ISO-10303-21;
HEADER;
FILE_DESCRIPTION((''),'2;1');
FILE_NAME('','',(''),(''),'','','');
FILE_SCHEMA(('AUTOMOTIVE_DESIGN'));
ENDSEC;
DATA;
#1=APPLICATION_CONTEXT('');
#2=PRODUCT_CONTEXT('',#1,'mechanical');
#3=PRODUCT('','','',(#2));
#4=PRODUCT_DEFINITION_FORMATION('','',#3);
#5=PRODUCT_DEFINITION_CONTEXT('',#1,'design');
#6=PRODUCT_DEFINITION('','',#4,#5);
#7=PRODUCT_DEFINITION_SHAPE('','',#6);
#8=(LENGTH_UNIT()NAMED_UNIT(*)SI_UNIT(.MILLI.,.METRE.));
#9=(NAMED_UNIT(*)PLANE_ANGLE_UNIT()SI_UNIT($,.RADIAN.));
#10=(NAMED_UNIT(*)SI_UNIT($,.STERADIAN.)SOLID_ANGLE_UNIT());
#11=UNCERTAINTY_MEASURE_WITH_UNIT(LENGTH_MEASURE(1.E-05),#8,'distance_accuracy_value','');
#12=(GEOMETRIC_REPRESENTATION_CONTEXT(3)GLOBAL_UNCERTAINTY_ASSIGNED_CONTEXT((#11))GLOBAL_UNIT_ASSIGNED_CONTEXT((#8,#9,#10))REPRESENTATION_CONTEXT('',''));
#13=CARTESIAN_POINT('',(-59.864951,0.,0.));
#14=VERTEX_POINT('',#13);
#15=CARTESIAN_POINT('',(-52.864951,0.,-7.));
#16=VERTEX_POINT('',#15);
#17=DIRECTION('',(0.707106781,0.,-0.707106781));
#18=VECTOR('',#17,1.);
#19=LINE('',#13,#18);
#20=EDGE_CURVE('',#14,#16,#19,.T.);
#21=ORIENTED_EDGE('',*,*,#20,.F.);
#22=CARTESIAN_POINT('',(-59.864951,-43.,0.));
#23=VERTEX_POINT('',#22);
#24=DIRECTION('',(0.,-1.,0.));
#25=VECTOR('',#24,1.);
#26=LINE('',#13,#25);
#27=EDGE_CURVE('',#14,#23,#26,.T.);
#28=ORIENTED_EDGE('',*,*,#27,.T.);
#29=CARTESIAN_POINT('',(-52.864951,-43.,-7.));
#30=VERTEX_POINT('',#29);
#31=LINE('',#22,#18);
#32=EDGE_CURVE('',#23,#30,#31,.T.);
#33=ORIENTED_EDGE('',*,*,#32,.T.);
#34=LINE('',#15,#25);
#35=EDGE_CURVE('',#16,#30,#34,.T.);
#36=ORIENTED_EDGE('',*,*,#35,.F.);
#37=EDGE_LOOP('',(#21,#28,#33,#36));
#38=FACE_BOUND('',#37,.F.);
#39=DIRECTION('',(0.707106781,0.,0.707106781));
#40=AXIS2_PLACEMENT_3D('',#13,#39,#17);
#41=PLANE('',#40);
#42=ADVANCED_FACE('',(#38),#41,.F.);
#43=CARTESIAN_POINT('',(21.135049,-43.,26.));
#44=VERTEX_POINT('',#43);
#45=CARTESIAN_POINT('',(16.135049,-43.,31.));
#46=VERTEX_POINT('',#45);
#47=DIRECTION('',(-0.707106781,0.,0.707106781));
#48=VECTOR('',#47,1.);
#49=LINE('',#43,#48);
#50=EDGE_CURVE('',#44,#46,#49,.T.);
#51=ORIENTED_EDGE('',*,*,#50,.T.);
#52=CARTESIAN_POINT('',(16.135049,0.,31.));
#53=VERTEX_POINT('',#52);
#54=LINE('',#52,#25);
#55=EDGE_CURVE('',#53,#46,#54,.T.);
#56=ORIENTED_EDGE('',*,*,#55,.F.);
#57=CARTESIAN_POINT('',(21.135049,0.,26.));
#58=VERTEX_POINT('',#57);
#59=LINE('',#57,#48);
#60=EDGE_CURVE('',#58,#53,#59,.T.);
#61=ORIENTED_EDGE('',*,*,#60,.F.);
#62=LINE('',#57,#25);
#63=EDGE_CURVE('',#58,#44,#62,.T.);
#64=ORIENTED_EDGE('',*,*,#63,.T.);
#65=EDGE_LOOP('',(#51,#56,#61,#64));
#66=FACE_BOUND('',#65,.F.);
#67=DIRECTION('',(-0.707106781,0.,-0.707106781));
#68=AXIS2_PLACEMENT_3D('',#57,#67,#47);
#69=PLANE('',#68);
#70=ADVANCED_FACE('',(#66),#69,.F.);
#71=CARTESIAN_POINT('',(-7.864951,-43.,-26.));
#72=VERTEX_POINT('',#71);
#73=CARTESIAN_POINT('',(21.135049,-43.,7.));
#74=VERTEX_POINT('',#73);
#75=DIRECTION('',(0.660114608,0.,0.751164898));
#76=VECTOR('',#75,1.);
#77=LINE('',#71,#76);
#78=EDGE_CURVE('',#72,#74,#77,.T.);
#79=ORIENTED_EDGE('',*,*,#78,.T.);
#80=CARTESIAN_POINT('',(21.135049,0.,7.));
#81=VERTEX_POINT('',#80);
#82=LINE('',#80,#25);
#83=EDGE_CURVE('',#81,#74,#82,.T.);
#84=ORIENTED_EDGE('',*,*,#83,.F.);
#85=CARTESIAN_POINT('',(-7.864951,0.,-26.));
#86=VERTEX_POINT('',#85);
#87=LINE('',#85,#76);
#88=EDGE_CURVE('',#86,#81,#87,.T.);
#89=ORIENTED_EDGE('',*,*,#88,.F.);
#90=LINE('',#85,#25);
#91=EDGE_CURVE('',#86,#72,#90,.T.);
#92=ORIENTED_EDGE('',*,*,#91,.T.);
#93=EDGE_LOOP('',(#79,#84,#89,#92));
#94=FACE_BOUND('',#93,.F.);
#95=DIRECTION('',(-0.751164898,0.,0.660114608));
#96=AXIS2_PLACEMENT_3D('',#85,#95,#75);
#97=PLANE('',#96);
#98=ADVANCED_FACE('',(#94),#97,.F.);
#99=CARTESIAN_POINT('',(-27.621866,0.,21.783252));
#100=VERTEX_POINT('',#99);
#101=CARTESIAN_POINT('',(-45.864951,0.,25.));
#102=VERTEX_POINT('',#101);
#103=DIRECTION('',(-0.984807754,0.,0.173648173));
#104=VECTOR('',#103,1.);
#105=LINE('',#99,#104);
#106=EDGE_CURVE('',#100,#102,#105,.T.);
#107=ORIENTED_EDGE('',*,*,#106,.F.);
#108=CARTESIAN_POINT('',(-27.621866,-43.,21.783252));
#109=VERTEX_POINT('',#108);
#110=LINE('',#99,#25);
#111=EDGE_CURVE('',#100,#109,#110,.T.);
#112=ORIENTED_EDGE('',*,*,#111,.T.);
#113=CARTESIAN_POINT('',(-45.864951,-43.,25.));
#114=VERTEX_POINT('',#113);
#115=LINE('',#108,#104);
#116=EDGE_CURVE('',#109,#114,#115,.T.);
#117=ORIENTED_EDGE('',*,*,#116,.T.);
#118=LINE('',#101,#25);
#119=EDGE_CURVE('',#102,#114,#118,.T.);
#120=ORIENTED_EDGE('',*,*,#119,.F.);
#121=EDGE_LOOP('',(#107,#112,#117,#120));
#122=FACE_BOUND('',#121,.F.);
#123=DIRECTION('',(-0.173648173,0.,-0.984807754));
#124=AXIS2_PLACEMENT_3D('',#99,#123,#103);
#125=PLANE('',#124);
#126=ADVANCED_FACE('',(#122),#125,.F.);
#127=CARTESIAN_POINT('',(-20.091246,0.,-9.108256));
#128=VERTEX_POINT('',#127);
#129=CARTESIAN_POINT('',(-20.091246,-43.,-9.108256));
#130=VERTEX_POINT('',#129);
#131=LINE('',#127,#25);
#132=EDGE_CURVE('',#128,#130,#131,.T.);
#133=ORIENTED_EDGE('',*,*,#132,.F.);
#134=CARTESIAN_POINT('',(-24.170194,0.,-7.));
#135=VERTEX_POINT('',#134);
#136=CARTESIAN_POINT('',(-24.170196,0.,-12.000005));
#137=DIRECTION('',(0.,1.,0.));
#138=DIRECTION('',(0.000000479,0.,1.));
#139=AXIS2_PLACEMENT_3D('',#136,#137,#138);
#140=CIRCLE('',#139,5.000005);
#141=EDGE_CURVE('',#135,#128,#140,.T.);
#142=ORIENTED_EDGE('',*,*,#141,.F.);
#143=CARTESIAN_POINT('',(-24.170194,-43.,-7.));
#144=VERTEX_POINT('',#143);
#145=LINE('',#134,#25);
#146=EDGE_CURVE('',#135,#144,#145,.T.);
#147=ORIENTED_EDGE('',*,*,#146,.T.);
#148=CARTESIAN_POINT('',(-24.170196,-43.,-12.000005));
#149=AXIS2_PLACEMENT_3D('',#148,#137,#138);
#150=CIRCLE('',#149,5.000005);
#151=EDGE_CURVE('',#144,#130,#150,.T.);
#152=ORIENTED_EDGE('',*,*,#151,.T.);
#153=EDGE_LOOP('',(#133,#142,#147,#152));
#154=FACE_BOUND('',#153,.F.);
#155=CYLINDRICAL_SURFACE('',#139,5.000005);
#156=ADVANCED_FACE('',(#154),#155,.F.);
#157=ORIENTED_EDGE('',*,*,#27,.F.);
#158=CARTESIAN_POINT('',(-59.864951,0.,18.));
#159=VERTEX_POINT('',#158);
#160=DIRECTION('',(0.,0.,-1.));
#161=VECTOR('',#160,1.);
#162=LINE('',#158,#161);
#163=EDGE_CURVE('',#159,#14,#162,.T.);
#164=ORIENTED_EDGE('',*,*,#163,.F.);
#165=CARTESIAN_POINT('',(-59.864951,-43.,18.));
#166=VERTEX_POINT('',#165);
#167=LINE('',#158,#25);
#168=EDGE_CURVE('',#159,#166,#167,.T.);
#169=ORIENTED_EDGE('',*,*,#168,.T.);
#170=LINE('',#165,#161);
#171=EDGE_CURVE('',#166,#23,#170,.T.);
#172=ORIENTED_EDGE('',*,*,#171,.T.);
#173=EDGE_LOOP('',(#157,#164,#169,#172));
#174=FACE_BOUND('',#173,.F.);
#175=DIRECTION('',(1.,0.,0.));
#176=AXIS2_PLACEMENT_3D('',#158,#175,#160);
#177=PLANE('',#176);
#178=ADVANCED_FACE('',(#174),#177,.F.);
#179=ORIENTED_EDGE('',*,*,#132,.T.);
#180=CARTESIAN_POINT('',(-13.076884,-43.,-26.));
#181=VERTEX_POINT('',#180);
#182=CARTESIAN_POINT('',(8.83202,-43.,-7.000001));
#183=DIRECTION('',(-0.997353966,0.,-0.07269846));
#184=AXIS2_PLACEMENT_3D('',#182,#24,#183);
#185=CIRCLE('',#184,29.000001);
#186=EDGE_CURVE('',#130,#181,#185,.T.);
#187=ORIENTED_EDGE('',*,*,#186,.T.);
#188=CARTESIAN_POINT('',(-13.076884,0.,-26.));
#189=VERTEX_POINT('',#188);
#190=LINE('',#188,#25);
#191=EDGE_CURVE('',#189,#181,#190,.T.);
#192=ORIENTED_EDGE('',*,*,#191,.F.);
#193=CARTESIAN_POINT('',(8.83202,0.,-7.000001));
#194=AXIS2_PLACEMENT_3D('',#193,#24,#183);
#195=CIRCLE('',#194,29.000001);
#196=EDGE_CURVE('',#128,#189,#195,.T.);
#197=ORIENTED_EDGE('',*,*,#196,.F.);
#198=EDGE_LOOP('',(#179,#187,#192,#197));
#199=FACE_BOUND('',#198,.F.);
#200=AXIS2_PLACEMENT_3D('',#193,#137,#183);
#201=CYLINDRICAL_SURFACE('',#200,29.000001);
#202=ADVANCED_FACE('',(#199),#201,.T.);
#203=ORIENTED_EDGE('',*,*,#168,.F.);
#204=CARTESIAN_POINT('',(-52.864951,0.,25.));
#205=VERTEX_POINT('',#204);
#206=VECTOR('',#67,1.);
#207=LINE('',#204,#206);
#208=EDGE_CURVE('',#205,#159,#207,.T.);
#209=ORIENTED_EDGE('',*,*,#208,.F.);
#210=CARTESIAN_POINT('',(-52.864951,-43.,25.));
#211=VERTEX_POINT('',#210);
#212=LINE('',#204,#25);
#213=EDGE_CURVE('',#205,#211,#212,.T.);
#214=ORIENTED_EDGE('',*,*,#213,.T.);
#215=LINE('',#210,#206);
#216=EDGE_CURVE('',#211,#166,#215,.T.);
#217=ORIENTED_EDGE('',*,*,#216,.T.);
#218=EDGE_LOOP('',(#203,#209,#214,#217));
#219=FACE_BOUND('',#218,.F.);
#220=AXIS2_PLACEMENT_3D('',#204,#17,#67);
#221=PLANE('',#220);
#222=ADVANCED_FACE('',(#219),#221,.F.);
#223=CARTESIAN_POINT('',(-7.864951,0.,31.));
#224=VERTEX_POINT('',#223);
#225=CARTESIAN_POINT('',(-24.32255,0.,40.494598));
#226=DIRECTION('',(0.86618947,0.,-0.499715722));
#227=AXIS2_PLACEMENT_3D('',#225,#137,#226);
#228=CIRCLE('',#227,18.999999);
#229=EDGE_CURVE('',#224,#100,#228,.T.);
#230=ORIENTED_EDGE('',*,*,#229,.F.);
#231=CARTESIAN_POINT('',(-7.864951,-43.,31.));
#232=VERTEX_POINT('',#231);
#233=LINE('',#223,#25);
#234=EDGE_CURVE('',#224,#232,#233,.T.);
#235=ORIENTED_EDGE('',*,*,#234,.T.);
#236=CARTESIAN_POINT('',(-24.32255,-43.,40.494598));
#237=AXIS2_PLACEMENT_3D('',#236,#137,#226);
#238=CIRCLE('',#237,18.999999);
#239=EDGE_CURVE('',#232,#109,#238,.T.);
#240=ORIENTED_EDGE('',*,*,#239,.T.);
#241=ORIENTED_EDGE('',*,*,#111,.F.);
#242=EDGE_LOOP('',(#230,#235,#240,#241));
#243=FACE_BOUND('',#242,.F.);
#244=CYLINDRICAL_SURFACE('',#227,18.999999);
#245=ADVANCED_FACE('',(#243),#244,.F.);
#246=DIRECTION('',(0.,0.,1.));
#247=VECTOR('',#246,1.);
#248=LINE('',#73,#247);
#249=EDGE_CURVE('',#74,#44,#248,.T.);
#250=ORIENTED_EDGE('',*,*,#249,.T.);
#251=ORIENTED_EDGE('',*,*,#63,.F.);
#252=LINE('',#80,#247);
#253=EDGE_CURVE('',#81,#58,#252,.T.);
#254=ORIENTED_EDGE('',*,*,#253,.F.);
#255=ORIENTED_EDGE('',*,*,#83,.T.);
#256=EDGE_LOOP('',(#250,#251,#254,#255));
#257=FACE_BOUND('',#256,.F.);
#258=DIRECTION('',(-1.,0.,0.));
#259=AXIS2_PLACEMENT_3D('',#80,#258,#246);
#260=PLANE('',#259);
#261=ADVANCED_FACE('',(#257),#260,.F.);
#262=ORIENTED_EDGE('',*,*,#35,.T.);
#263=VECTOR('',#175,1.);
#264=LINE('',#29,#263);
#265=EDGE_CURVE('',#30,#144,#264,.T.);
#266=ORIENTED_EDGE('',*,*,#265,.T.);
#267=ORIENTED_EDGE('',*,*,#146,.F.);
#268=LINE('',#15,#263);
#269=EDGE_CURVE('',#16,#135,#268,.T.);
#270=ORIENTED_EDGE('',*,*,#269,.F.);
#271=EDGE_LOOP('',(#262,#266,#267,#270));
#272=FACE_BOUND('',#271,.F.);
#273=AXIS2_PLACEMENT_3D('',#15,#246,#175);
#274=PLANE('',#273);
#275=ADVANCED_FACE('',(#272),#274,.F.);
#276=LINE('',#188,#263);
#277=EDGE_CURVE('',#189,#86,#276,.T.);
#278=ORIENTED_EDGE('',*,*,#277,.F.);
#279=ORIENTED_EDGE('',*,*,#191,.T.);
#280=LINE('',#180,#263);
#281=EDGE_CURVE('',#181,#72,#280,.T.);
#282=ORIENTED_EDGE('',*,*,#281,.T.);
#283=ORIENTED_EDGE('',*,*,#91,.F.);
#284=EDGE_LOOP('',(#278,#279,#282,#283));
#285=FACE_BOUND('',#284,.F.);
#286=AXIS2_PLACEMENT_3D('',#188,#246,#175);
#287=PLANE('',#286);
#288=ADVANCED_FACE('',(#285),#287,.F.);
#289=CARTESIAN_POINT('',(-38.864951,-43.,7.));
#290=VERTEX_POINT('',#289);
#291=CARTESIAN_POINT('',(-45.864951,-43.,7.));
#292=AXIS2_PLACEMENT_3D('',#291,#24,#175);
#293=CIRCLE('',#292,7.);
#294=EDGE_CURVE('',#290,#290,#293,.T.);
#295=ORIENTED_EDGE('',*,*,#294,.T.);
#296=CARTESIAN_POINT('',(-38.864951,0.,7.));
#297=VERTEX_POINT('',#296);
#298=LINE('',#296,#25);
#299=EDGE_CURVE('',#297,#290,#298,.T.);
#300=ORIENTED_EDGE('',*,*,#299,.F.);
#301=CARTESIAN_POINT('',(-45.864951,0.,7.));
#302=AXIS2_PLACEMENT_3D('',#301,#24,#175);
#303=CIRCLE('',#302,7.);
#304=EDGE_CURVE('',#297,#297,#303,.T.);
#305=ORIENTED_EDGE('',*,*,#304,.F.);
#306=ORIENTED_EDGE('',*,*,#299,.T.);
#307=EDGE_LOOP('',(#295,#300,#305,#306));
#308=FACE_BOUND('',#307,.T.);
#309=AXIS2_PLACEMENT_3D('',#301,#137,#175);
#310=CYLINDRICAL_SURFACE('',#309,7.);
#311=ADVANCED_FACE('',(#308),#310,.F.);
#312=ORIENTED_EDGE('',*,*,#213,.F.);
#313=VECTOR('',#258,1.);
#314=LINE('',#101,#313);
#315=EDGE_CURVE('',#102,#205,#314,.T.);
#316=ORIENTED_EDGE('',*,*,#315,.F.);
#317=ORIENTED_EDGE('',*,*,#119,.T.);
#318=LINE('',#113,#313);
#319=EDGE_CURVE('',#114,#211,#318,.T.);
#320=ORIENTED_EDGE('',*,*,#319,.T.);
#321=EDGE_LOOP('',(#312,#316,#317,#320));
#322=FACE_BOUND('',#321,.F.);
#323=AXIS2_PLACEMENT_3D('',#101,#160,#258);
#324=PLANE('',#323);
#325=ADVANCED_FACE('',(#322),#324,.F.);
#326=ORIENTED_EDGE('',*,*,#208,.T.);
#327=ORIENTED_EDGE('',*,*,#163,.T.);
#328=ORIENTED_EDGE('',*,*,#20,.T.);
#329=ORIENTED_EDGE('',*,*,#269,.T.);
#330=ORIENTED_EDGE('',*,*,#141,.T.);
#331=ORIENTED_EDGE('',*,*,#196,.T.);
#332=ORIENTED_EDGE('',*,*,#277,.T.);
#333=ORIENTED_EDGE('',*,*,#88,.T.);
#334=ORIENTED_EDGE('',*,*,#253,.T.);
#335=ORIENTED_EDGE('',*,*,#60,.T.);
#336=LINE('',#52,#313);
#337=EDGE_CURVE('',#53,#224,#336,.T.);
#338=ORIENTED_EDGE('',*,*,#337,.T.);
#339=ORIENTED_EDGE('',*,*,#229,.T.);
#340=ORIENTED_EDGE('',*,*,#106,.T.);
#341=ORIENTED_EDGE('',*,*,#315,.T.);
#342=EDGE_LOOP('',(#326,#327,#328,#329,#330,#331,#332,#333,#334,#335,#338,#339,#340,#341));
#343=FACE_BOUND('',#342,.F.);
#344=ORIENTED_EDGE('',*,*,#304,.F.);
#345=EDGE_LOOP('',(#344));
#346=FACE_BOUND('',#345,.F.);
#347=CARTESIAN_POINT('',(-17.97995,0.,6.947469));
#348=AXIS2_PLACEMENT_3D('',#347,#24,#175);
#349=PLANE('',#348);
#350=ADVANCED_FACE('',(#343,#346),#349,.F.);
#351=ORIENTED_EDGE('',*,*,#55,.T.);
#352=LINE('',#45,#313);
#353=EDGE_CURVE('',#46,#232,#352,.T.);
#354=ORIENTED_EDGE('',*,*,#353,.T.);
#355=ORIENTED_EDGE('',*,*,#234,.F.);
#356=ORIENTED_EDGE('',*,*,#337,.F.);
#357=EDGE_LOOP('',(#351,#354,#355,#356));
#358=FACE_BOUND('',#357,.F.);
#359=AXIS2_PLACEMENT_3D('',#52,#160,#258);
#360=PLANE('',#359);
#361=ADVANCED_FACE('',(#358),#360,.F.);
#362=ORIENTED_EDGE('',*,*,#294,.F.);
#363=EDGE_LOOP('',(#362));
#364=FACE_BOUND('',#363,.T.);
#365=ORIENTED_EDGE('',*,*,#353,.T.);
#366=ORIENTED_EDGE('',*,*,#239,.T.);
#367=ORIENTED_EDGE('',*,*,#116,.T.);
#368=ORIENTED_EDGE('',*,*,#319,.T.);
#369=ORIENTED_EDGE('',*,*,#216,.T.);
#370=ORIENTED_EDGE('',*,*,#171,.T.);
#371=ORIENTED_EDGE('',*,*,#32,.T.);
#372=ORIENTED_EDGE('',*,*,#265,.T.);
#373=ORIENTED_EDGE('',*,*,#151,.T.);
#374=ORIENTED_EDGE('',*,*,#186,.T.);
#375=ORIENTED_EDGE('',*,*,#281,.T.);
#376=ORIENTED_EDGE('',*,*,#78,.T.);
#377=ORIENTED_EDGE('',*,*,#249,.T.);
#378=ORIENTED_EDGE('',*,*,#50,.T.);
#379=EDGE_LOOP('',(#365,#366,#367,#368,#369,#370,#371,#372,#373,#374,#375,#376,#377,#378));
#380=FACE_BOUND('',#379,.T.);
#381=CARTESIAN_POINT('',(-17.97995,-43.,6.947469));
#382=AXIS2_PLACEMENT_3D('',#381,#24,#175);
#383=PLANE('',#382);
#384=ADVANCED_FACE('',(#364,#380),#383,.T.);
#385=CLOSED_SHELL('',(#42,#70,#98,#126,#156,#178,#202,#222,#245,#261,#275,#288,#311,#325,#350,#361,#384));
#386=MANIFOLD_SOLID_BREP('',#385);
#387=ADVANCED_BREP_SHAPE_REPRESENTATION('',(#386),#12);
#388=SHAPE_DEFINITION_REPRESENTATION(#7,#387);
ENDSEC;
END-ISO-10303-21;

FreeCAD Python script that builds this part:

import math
import FreeCAD as App
import Part
import Sketcher
Q = App.Units.Quantity

doc = App.newDocument("Part")
body = doc.addObject("PartDesign::Body", "Body")

sketch1 = body.newObject("Sketcher::SketchObject", "Sketch")
sketch1.AttachmentSupport = (doc.getObject("XZ_Plane"), [""])
sketch1.MapMode = "FlatFace"
sketch1.addGeometry([
    Part.ArcOfCircle(Part.Circle(App.Vector(8.8, -7, 0), App.Vector(0, 0, 1), 29), math.radians(-176), math.radians(-139)),
    Part.LineSegment(App.Vector(-13.1, -26, 0), App.Vector(-7.9, -26, 0)),
    Part.LineSegment(App.Vector(-7.9, -26, 0), App.Vector(21.1, 7, 0)),
    Part.LineSegment(App.Vector(21.1, 7, 0), App.Vector(21.1, 26, 0)),
    Part.LineSegment(App.Vector(21.1, 26, 0), App.Vector(16.1, 31, 0)),
    Part.LineSegment(App.Vector(16.1, 31, 0), App.Vector(-7.9, 31, 0)),
    Part.ArcOfCircle(Part.Circle(App.Vector(-24.3, 40.5, 0), App.Vector(0, 0, 1), 19), math.radians(-100), math.radians(-30)),
    Part.LineSegment(App.Vector(-27.6, 21.8, 0), App.Vector(-45.9, 25, 0)),
    Part.LineSegment(App.Vector(-45.9, 25, 0), App.Vector(-52.9, 25, 0)),
    Part.LineSegment(App.Vector(-52.9, 25, 0), App.Vector(-59.9, 18, 0)),
    Part.LineSegment(App.Vector(-59.9, 18, 0), App.Vector(-59.9, 0, 0)),
    Part.LineSegment(App.Vector(-59.9, 0, 0), App.Vector(-52.9, -7, 0)),
    Part.LineSegment(App.Vector(-52.9, -7, 0), App.Vector(-24.2, -7, 0)),
    Part.ArcOfCircle(Part.Circle(App.Vector(-24.2, -12, 0), App.Vector(0, 0, 1), 5), math.radians(35), math.radians(90)),
    Part.Circle(App.Vector(-45.9, 7, 0), App.Vector(0, 0, 1), 7),
], False)
sketch1.addConstraint([
    Sketcher.Constraint("Coincident", 0, 2, 1, 1),
    Sketcher.Constraint("Coincident", 1, 2, 2, 1),
    Sketcher.Constraint("Coincident", 2, 2, 3, 1),
    Sketcher.Constraint("Coincident", 3, 2, 4, 1),
    Sketcher.Constraint("Coincident", 4, 2, 5, 1),
    Sketcher.Constraint("Coincident", 5, 2, 6, 2),
    Sketcher.Constraint("Tangent", 6, 1, 7, 1),
    Sketcher.Constraint("Coincident", 7, 2, 8, 1),
    Sketcher.Constraint("Coincident", 8, 2, 9, 1),
    Sketcher.Constraint("Coincident", 9, 2, 10, 1),
    Sketcher.Constraint("Coincident", 10, 2, 11, 1),
    Sketcher.Constraint("Coincident", 11, 2, 12, 1),
    Sketcher.Constraint("Tangent", 12, 2, 13, 2),
    Sketcher.Constraint("Coincident", 13, 1, 0, 1),
    Sketcher.Constraint("Horizontal", 1),
    Sketcher.Constraint("Vertical", 3),
    Sketcher.Constraint("Horizontal", 5),
    Sketcher.Constraint("Horizontal", 8),
    Sketcher.Constraint("Vertical", 10),
    Sketcher.Constraint("Horizontal", 12),
    Sketcher.Constraint("PointOnObject", 10, 2, -1),
    Sketcher.Constraint("Perpendicular", 4, 9),
    Sketcher.Constraint("Perpendicular", 9, 11),
    Sketcher.Constraint("Horizontal", 14, 3, 2, 2),
    Sketcher.Constraint("Horizontal", 0, 3, 11, 2),
    Sketcher.Constraint("Vertical", 1, 2, 5, 2),
    Sketcher.Constraint("Vertical", 14, 3, 7, 2),
    Sketcher.Constraint("Vertical", 8, 2, 11, 2),
    Sketcher.Constraint("Equal", 9, 11),
    Sketcher.Constraint("Diameter", 14, 14.0),
    Sketcher.Constraint("Radius", 0, 29.000001),
    Sketcher.Constraint("Radius", 6, 18.999999),
    Sketcher.Constraint("DistanceX", 5, 2, 5, 1, 24.0),
    Sketcher.Constraint("DistanceX", 8, 2, 8, 1, 7.0),
    Sketcher.Constraint("DistanceY", 3, 1, 3, 2, 19.0),
    Sketcher.Constraint("DistanceY", 10, 2, 10, 1, 18.0),
    Sketcher.Constraint("Angle", 7, Q("170 deg")),
    Sketcher.Constraint("DistanceY", 0, 3, -1, 1, 7.000001),
    Sketcher.Constraint("DistanceY", -1, 1, 14, 3, 7.0),
    Sketcher.Constraint("DistanceY", 0, 2, -1, 1, 26.0),
    Sketcher.Constraint("DistanceY", -1, 1, 4, 2, 31.0),
    Sketcher.Constraint("DistanceX", 14, 3, 1, 2, 38.0),
    Sketcher.Constraint("Radius", 13, 5.000005),
    Sketcher.Constraint("DistanceX", 1, 1, 1, 2, 5.211933),
    Sketcher.Constraint("DistanceX", 12, 1, 12, 2, 28.694757),
    Sketcher.Constraint("DistanceX", -1, 1, 0, 3, 8.83202),
])
pad1 = body.newObject("PartDesign::Pad", "Pad")
pad1.Profile = sketch1
pad1.Length = 43

doc.recompute()
